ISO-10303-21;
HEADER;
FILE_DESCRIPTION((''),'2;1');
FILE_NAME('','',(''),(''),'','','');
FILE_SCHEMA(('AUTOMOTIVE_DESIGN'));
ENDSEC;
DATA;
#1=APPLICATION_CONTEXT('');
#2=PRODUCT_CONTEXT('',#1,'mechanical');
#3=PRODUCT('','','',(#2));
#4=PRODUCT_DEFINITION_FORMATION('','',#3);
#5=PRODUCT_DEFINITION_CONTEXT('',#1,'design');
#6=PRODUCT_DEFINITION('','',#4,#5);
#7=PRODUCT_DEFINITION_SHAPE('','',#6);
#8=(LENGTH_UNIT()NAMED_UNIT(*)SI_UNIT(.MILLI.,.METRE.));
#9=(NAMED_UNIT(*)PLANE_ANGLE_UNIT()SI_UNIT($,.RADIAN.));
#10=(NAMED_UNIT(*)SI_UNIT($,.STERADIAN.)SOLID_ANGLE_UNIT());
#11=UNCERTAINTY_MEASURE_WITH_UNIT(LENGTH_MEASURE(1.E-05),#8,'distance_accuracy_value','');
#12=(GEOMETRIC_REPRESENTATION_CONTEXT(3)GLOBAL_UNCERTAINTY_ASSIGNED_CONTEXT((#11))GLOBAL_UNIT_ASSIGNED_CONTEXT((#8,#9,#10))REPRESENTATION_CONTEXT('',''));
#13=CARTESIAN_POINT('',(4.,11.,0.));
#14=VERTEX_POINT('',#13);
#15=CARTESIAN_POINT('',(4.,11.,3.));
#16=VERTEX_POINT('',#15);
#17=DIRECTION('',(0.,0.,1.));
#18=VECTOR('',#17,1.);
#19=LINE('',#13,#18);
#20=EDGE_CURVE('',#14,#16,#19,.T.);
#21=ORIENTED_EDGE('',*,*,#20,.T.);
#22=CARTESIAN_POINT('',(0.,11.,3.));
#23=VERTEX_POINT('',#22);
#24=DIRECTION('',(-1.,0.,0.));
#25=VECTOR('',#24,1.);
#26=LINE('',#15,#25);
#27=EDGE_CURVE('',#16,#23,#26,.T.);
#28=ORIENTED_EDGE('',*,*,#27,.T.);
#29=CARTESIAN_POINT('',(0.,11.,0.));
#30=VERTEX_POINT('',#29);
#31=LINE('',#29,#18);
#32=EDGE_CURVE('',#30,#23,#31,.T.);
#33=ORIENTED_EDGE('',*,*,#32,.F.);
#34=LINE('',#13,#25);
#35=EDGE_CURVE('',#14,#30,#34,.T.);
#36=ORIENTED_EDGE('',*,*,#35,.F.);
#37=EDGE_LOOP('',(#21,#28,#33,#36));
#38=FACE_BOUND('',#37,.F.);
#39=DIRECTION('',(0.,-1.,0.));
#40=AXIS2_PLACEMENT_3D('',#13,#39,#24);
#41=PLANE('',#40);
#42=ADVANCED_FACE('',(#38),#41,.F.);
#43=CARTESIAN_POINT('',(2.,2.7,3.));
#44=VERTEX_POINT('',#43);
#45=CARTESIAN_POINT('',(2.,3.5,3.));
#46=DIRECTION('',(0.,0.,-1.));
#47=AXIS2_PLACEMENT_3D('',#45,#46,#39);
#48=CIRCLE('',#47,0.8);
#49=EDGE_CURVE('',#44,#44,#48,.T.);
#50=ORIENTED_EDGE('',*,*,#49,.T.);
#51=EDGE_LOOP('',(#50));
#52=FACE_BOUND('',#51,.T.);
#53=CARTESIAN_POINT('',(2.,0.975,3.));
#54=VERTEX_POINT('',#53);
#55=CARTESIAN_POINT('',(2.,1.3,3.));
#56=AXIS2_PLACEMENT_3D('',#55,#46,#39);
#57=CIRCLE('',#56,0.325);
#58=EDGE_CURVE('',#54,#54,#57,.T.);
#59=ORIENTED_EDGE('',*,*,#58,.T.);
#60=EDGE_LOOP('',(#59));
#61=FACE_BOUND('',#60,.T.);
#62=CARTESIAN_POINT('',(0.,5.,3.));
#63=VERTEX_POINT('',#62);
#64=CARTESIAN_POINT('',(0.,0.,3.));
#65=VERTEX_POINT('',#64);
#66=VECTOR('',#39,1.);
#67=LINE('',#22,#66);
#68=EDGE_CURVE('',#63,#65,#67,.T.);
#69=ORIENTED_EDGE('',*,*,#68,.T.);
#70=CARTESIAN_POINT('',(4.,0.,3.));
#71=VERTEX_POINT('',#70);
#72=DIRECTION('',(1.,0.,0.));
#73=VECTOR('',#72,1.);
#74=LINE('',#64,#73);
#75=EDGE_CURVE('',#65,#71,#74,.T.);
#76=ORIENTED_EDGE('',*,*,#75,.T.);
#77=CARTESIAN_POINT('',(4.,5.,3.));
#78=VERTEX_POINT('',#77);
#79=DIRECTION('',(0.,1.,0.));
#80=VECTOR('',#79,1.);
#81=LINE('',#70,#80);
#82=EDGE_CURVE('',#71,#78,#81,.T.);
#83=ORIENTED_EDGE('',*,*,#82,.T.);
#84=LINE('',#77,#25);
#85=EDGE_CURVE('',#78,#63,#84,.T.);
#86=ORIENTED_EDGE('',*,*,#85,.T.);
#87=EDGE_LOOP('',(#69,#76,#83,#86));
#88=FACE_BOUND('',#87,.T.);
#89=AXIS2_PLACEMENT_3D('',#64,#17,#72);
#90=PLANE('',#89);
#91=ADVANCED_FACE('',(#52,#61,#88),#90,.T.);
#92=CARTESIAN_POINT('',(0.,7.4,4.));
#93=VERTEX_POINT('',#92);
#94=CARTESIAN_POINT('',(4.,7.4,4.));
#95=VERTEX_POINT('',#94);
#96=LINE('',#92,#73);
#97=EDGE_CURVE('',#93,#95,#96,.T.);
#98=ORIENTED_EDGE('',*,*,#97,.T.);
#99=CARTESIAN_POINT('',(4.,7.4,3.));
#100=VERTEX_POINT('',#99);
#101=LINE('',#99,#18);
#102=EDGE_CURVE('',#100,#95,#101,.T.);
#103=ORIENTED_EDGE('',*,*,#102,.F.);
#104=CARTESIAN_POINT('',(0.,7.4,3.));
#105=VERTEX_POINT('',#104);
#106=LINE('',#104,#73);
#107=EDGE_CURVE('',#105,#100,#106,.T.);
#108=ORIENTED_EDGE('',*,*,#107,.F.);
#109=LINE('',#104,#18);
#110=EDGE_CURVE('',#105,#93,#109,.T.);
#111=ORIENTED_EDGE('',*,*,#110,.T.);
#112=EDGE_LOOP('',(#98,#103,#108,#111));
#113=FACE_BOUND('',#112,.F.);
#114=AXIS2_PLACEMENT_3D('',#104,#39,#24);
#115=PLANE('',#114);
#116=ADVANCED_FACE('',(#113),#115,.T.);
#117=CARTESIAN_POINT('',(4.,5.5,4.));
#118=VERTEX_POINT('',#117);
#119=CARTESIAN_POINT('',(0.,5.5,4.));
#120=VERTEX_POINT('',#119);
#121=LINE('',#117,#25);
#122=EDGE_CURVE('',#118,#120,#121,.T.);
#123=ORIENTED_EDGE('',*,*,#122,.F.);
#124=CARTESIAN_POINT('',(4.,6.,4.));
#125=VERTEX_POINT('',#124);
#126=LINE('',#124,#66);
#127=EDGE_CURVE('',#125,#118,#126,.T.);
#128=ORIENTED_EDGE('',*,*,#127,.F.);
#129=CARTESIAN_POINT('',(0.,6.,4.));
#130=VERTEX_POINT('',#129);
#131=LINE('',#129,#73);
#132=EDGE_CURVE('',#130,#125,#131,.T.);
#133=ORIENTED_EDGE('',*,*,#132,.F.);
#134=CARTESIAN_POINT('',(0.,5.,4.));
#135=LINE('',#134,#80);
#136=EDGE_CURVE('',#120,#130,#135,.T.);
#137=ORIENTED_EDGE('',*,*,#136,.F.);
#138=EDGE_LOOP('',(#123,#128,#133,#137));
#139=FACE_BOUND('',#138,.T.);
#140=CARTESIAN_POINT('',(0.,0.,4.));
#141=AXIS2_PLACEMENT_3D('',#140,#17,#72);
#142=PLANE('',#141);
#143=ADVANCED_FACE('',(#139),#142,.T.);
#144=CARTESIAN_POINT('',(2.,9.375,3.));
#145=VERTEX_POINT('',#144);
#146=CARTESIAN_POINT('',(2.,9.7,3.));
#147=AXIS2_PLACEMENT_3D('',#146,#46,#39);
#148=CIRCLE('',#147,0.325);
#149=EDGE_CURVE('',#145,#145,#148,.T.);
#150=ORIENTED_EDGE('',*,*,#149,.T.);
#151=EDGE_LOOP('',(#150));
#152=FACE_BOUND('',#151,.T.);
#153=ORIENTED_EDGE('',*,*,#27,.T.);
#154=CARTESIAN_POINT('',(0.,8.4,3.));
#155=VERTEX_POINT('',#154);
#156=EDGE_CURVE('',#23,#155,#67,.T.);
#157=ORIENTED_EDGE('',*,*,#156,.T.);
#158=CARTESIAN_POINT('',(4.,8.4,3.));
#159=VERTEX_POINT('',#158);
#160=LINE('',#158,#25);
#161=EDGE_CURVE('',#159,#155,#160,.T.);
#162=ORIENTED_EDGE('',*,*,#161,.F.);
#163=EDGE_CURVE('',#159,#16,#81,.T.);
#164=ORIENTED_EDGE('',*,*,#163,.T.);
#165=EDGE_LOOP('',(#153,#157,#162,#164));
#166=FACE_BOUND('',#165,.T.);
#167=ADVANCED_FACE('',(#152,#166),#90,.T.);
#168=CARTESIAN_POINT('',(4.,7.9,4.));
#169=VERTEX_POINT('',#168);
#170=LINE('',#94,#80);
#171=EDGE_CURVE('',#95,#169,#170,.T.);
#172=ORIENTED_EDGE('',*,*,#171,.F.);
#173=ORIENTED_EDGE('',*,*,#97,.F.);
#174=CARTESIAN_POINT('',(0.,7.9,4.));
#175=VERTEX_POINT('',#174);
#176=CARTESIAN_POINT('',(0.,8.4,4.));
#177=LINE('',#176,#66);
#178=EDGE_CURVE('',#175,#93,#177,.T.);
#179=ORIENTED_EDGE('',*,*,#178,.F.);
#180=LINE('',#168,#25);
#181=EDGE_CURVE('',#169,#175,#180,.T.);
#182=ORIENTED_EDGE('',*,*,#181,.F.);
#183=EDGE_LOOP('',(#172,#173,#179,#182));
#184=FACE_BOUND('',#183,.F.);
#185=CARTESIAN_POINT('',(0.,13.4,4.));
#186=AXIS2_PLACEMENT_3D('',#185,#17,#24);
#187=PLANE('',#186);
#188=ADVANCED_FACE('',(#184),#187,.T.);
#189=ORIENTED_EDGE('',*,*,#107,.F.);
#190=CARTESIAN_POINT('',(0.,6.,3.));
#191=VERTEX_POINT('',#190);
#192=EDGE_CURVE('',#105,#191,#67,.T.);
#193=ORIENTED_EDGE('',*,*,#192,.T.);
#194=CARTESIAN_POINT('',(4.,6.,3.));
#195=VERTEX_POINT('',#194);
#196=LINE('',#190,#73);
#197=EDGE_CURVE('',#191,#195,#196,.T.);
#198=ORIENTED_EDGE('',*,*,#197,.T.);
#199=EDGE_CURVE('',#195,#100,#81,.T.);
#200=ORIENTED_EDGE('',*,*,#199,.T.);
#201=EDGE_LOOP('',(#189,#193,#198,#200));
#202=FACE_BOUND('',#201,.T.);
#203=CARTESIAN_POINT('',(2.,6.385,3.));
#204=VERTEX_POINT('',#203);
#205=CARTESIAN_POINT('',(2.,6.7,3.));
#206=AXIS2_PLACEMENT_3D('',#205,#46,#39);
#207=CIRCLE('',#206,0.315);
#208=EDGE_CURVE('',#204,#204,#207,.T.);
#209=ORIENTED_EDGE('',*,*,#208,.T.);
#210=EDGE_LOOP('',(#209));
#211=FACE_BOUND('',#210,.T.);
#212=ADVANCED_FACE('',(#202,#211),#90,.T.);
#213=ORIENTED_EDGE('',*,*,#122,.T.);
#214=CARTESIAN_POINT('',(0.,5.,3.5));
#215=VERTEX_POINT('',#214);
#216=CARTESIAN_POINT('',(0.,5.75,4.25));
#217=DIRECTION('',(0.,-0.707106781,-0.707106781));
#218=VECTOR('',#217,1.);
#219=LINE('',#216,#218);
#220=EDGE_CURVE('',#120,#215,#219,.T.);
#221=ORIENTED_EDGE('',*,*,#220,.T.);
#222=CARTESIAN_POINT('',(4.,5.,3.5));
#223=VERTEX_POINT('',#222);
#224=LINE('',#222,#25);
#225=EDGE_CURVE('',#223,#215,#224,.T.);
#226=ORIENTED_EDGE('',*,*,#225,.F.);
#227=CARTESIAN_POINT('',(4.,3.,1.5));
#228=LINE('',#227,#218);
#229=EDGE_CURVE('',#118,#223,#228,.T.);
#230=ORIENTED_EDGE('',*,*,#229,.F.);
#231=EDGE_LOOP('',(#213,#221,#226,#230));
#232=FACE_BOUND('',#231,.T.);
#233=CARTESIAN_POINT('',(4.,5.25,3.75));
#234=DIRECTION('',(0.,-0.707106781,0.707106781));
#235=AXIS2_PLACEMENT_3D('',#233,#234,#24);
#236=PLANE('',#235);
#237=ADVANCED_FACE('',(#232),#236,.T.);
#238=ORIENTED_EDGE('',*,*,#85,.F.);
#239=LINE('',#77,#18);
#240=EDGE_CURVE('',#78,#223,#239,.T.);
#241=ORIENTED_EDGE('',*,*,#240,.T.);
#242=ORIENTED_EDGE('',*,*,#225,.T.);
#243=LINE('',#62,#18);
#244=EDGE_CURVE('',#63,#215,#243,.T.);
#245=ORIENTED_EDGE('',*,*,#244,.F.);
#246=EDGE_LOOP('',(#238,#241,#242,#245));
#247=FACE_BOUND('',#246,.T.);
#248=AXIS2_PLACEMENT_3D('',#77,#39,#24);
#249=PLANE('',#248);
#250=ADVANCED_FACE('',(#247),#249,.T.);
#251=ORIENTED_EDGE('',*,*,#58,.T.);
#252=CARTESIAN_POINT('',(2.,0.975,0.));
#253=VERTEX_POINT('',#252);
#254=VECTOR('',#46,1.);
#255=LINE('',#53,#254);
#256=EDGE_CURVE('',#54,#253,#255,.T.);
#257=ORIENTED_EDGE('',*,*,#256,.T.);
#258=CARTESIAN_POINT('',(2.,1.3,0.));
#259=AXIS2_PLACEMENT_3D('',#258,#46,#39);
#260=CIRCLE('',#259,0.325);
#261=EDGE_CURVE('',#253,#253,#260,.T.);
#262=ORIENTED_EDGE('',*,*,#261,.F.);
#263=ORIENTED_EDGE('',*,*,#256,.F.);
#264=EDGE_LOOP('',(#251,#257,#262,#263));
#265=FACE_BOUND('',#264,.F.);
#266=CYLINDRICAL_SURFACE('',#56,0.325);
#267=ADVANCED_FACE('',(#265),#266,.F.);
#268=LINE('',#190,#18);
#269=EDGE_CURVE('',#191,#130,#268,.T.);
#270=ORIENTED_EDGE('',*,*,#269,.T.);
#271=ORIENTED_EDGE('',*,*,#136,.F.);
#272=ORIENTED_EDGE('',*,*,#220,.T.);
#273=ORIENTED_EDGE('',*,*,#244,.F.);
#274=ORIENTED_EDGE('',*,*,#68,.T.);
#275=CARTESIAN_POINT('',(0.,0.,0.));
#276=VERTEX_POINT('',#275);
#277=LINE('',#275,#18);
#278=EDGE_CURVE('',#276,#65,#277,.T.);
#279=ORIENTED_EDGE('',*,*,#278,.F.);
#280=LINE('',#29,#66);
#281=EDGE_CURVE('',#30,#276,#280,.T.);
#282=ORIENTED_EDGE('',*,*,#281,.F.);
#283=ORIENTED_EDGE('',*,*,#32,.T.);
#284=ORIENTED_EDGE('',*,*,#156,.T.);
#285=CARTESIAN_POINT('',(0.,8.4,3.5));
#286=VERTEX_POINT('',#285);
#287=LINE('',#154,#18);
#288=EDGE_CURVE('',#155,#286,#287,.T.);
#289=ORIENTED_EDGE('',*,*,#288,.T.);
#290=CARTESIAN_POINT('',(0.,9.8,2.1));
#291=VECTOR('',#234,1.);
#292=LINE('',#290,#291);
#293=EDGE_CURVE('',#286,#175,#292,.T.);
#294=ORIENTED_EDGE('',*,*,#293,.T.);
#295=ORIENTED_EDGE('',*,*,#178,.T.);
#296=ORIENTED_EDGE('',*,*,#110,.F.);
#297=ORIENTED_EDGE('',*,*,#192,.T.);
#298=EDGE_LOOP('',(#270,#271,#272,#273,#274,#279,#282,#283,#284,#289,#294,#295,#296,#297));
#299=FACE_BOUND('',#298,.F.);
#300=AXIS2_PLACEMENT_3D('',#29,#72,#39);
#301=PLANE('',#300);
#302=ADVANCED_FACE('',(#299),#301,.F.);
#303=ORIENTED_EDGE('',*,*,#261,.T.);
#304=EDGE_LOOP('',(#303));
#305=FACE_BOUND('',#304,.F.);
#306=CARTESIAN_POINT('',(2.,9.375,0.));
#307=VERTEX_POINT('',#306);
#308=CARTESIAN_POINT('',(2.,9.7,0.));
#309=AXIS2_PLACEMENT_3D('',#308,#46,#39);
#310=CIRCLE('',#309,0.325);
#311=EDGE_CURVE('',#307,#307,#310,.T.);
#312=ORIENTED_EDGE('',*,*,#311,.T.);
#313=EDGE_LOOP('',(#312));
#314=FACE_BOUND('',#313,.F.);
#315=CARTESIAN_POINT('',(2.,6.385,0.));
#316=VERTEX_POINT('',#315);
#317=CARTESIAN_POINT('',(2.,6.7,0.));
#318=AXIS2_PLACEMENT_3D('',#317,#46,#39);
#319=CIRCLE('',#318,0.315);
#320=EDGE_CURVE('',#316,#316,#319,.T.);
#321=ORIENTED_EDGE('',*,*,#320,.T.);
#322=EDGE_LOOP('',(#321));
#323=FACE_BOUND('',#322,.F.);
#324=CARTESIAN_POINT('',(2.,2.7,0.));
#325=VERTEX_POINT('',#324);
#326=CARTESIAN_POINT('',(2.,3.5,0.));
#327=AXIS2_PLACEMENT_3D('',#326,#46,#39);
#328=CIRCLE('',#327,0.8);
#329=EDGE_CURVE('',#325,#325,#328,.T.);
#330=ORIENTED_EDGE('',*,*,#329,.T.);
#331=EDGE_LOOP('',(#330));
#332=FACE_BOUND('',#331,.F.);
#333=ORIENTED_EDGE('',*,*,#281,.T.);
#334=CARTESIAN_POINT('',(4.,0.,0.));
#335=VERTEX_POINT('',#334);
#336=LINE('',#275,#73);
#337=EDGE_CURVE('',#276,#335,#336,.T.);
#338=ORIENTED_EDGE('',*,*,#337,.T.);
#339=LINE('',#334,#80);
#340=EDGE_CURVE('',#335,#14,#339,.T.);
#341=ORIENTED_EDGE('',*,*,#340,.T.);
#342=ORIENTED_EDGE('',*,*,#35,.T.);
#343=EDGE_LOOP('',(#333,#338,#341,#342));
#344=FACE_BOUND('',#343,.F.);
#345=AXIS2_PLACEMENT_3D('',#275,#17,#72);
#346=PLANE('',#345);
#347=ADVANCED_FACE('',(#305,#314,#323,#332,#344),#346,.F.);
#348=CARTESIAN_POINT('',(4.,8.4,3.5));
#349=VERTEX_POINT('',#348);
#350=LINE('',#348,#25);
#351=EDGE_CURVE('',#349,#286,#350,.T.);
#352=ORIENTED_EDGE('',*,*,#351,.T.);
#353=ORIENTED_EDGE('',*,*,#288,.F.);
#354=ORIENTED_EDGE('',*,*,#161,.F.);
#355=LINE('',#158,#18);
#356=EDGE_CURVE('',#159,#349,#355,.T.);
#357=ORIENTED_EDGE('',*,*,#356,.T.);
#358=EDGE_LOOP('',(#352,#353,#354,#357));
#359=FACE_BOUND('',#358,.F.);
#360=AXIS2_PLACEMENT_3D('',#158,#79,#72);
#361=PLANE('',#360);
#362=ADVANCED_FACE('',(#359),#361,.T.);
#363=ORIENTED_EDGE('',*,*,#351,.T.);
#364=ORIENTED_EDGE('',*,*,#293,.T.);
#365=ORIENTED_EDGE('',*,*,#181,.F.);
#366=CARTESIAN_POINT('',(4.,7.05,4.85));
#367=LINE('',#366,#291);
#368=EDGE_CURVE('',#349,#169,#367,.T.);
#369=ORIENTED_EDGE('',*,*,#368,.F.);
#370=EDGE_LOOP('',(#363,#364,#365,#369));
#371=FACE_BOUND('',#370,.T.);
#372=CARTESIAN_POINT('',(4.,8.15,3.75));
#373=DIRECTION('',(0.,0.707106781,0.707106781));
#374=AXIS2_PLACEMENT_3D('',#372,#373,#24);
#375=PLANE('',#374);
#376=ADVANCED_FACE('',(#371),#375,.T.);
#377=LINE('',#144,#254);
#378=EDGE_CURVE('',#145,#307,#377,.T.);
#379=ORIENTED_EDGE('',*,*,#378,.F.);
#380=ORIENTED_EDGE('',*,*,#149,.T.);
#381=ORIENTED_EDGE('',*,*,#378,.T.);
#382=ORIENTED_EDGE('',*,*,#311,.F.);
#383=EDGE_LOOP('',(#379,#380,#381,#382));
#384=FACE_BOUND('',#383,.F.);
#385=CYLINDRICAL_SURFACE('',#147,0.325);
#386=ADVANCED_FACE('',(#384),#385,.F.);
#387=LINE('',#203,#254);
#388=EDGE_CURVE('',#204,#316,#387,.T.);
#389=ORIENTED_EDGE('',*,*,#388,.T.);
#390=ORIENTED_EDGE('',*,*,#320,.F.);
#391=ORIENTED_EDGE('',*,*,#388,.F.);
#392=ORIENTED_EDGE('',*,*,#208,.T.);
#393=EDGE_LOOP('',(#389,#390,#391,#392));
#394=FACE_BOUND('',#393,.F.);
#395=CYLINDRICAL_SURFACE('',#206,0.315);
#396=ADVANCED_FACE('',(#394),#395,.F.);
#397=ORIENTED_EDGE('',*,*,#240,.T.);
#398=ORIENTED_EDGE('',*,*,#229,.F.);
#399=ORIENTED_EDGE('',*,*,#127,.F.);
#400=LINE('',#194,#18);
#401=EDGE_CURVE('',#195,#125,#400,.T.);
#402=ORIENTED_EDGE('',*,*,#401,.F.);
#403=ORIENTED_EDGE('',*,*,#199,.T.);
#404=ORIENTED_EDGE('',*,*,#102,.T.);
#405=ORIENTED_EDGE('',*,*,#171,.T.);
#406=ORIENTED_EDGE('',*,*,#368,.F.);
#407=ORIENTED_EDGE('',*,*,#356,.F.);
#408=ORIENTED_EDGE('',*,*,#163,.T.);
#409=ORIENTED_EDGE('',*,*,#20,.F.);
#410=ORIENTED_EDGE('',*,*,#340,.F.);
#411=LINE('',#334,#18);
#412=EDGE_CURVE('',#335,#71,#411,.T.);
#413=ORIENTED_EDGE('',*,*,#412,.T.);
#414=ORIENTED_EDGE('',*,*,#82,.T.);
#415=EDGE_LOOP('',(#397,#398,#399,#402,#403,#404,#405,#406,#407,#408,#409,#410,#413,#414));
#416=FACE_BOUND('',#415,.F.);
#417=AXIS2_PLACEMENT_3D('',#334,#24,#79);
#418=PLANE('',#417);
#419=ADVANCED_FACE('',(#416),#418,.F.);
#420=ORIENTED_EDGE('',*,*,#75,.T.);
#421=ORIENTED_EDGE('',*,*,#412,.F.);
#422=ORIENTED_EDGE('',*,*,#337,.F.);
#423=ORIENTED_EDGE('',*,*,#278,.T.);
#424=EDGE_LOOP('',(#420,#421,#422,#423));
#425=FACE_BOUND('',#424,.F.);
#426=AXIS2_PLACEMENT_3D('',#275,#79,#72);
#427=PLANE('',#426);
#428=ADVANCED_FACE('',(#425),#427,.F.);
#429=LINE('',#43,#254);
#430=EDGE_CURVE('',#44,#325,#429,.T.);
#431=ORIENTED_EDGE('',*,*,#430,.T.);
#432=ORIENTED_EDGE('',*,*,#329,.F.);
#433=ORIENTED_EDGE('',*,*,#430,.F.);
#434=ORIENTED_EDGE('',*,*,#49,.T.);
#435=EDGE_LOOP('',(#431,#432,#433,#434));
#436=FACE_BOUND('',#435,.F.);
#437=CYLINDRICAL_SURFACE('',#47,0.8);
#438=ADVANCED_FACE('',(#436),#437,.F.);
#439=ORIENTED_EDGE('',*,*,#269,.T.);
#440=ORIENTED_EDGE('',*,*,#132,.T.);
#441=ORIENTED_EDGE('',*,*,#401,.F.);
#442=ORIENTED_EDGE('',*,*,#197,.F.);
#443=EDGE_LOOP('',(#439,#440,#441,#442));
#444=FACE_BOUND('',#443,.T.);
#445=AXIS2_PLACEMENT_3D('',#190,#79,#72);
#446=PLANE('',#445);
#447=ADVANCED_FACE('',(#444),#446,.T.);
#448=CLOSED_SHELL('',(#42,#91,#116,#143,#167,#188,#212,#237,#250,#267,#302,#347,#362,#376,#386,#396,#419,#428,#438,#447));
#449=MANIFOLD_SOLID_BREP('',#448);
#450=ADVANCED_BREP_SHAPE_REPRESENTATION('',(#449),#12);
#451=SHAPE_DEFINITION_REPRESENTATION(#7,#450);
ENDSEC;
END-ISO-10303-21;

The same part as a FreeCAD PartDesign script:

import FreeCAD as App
import Part
import Sketcher

V = App.Vector


def edges_at(feature, points):
    """Names of the edges that pass closest to the given points."""
    edges = feature.Shape.Edges
    near = lambda p: min(range(len(edges)), key=lambda i: edges[i].distToShape(Part.Vertex(*p))[0])
    return sorted({f"Edge{near(p) + 1}" for p in points})


def add_polygon(sketch, points):
    """Adds a closed chain of lines whose ends are joined by coincident constraints."""
    first, n = sketch.GeometryCount, len(points)
    for a, b in zip(points, points[1:] + points[:1]):
        sketch.addGeometry(Part.LineSegment(App.Vector(*a, 0), App.Vector(*b, 0)), False)
    for i in range(n):
        sketch.addConstraint(Sketcher.Constraint("Coincident", first + i, 2, first + (i + 1) % n, 1))

doc = App.newDocument("Part")
body = doc.addObject("PartDesign::Body", "Body")

# Sketch on XY plane
sketch1 = body.newObject("Sketcher::SketchObject", "Sketch")
sketch1.AttachmentSupport = (doc.getObject("XY_Plane"), [""])
sketch1.MapMode = "FlatFace"
add_polygon(sketch1, [(0, 11), (0, 0), (4, 0), (4, 11)])  # lines 0-3
sketch1.addConstraint([
    Sketcher.Constraint("Vertical", 0),
    Sketcher.Constraint("Horizontal", 1),
    Sketcher.Constraint("Vertical", 2),
    Sketcher.Constraint("Horizontal", 3),
    Sketcher.Constraint("Coincident", 0, 2, -1, 1),
    Sketcher.Constraint("DistanceX", 1, 1, 1, 2, 4.0),
    Sketcher.Constraint("DistanceY", 0, 2, 0, 1, 11.0),
])
pad1 = body.newObject("PartDesign::Pad", "Pad")
pad1.Profile = sketch1
pad1.Length = 3

# Sketch on XY plane
sketch2 = body.newObject("Sketcher::SketchObject", "Sketch001")
sketch2.AttachmentSupport = (doc.getObject("XY_Plane"), [""])
sketch2.MapMode = "FlatFace"
sketch2.AttachmentOffset = App.Placement(V(0, 0, 3), App.Rotation())
add_polygon(sketch2, [(4, 6), (0, 6), (0, 5), (4, 5)])  # lines 0-3
sketch2.addConstraint([
    Sketcher.Constraint("Horizontal", 0),
    Sketcher.Constraint("Vertical", 1),
    Sketcher.Constraint("Horizontal", 2),
    Sketcher.Constraint("Vertical", 3),
    Sketcher.Constraint("PointOnObject", 0, 2, -2),
    Sketcher.Constraint("DistanceY", 1, 2, 1, 1, 1.0),
    Sketcher.Constraint("DistanceY", -1, 1, 1, 2, 5.0),
    Sketcher.Constraint("DistanceX", 0, 2, 0, 1, 4.0),
])
pad2 = body.newObject("PartDesign::Pad", "Pad001")
pad2.Profile = sketch2
pad2.Length = 1

# Sketch on XY plane
sketch3 = body.newObject("Sketcher::SketchObject", "Sketch002")
sketch3.AttachmentSupport = (doc.getObject("XY_Plane"), [""])
sketch3.MapMode = "FlatFace"
sketch3.AttachmentOffset = App.Placement(V(0, 0, 3), App.Rotation())
sketch3.addGeometry(Part.Circle(V(2, 6.7, 0), V(0, 0, 1), 0.32), False)
sketch3.addConstraint([
    Sketcher.Constraint("Diameter", 0, 0.63),
    Sketcher.Constraint("DistanceX", -1, 1, 0, 3, 2.0),
    Sketcher.Constraint("DistanceY", -1, 1, 0, 3, 6.7),
])
doc.recompute()
hole = body.newObject("PartDesign::Hole", "Hole")
hole.Profile = sketch3
hole.ThreadType = "None"
hole.Diameter = 0.63
hole.DepthType = "ThroughAll"

# Sketch on XY plane
sketch4 = body.newObject("Sketcher::SketchObject", "Sketch003")
sketch4.AttachmentSupport = (doc.getObject("XY_Plane"), [""])
sketch4.MapMode = "FlatFace"
sketch4.AttachmentOffset = App.Placement(V(0, 0, 3), App.Rotation())
sketch4.addGeometry(Part.Circle(V(2, 3.5, 0), V(0, 0, 1), 0.8), False)
sketch4.addConstraint([
    Sketcher.Constraint("Diameter", 0, 1.6),
    Sketcher.Constraint("DistanceX", -1, 1, 0, 3, 2.0),
    Sketcher.Constraint("DistanceY", -1, 1, 0, 3, 3.5),
])
doc.recompute()
hole2 = body.newObject("PartDesign::Hole", "Hole001")
hole2.Profile = sketch4
hole2.ThreadType = "None"
hole2.Diameter = 1.6
hole2.DepthType = "ThroughAll"

# Sketch on XY plane
sketch5 = body.newObject("Sketcher::SketchObject", "Sketch004")
sketch5.AttachmentSupport = (doc.getObject("XY_Plane"), [""])
sketch5.MapMode = "FlatFace"
sketch5.AttachmentOffset = App.Placement(V(0, 0, 3), App.Rotation())
sketch5.addGeometry([
    Part.Circle(V(2, 1.3, 0), V(0, 0, 1), 0.33),
    Part.Circle(V(2, 9.7, 0), V(0, 0, 1), 0.33),
], False)
sketch5.addConstraint([
    Sketcher.Constraint("Equal", 0, 1),
    Sketcher.Constraint("Vertical", 0, 3, 1, 3),
    Sketcher.Constraint("Diameter", 0, 0.65),
    Sketcher.Constraint("DistanceX", -1, 1, 0, 3, 2.0),
    Sketcher.Constraint("DistanceY", -1, 1, 0, 3, 1.3),
    Sketcher.Constraint("DistanceY", -1, 1, 1, 3, 9.7),
])
doc.recompute()
hole3 = body.newObject("PartDesign::Hole", "Hole002")
hole3.Profile = sketch5
hole3.ThreadType = "None"
hole3.Diameter = 0.65
hole3.DepthType = "ThroughAll"
doc.recompute()

chamfer = body.newObject("PartDesign::Chamfer", "Chamfer")
chamfer.Base = (hole3, edges_at(hole3, [(2, 5, 4)]))
chamfer.Size = 0.5
doc.recompute()

datumplane = body.newObject("PartDesign::Plane", "DatumPlane")
datumplane.AttachmentSupport = (doc.getObject("XZ_Plane"), [""])
datumplane.MapMode = "FlatFace"
datumplane.AttachmentOffset = App.Placement(V(0, 0, -6.7), App.Rotation())
mirrored = body.newObject("PartDesign::Mirrored", "Mirrored")
mirrored.Originals = [pad2, chamfer]
mirrored.MirrorPlane = (datumplane, [""])
body.Tip = mirrored

doc.recompute()
